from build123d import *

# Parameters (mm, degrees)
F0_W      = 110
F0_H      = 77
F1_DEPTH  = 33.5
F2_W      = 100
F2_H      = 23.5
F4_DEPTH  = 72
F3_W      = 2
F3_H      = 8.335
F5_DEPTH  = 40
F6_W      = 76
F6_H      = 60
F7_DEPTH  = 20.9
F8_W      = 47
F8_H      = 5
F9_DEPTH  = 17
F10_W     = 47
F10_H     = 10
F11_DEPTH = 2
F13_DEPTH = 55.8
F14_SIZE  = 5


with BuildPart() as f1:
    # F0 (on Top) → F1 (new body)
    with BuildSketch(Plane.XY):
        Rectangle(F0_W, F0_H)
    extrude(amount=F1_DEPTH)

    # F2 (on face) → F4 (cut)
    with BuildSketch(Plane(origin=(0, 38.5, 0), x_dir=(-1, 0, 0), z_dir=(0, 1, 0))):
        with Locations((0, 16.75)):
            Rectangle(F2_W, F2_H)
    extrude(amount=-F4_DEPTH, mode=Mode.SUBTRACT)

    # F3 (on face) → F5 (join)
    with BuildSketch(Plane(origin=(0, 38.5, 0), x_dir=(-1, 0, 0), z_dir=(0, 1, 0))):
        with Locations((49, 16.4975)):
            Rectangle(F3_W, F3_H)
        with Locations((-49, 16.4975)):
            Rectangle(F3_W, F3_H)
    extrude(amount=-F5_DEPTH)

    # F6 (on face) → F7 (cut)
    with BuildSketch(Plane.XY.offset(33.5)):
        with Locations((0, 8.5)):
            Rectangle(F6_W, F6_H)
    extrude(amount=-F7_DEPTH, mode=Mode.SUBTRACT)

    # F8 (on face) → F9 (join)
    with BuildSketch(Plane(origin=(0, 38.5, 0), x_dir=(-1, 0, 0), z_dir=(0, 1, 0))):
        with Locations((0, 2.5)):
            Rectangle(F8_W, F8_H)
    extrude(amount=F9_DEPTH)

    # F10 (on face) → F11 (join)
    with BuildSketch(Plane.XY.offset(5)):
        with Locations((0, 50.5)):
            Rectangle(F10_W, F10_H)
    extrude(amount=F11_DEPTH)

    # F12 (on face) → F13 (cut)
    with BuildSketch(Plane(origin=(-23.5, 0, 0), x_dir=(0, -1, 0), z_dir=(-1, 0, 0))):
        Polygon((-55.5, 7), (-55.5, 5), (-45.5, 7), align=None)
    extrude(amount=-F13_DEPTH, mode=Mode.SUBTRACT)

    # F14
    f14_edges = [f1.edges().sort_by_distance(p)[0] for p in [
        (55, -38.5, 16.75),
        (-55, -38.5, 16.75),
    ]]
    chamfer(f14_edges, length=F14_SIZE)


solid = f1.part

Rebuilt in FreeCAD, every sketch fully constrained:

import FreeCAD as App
import Part
import Sketcher
from FreeCAD import Vector


def edges_at(feature, points):
    """Names of the edges that pass closest to the given points."""
    edges = feature.Shape.Edges
    near = lambda p: min(range(len(edges)), key=lambda i: edges[i].distToShape(Part.Vertex(*p))[0])
    return sorted({f"Edge{near(p) + 1}" for p in points})


def add_polygon(sketch, points):
    """Adds a closed chain of lines whose ends are joined by coincident constraints."""
    first, n = sketch.GeometryCount, len(points)
    for a, b in zip(points, points[1:] + points[:1]):
        sketch.addGeometry(Part.LineSegment(App.Vector(*a, 0), App.Vector(*b, 0)), False)
    for i in range(n):
        sketch.addConstraint(Sketcher.Constraint("Coincident", first + i, 2, first + (i + 1) % n, 1))

doc = App.newDocument("Part")
body = doc.addObject("PartDesign::Body", "Body")

# Sketch on XY plane
sketch1 = doc.addObject("Sketcher::SketchObject", "Sketch")
body.addObject(sketch1)
sketch1.AttachmentSupport = (doc.XY_Plane, [""])
sketch1.MapMode = "FlatFace"
add_polygon(sketch1, [(-55, 38), (-55, -38), (55, -38), (55, 38)])  # lines 0-3
sketch1.addConstraint([
    Sketcher.Constraint("Vertical", 0),
    Sketcher.Constraint("Horizontal", 1),
    Sketcher.Constraint("Vertical", 2),
    Sketcher.Constraint("Horizontal", 3),
    Sketcher.Constraint("Symmetric", 0, 2, 2, 2, -1, 1),
    Sketcher.Constraint("DistanceX", 1, 1, 1, 2, 110.0),
    Sketcher.Constraint("DistanceY", 0, 2, 0, 1, 77.0),
])
pad1 = doc.addObject("PartDesign::Pad", "Pad")
body.addObject(pad1)
pad1.Profile = sketch1
pad1.Length = 33.5

# Sketch on XZ plane
sketch2 = doc.addObject("Sketcher::SketchObject", "Sketch001")
body.addObject(sketch2)
sketch2.AttachmentSupport = (doc.XZ_Plane, [""])
sketch2.MapMode = "FlatFace"
sketch2.AttachmentOffset = App.Placement(Vector(0, 0, -38.5), App.Rotation())
add_polygon(sketch2, [(50, 28), (50, 5), (-50, 5), (-50, 28)])  # lines 0-3
sketch2.addConstraint([
    Sketcher.Constraint("Vertical", 0),
    Sketcher.Constraint("Horizontal", 1),
    Sketcher.Constraint("Vertical", 2),
    Sketcher.Constraint("Horizontal", 3),
    Sketcher.Constraint("DistanceX", 1, 2, 1, 1, 100.0),
    Sketcher.Constraint("DistanceY", 0, 2, 0, 1, 23.5),
    Sketcher.Constraint("DistanceX", -1, 1, 0, 2, 50.0),
    Sketcher.Constraint("DistanceY", -1, 1, 0, 2, 5.0),
])
pocket1 = doc.addObject("PartDesign::Pocket", "Pocket")
body.addObject(pocket1)
pocket1.Profile = sketch2
pocket1.Length = 72
pocket1.Reversed = True

# Sketch on XZ plane
sketch3 = doc.addObject("Sketcher::SketchObject", "Sketch002")
body.addObject(sketch3)
sketch3.AttachmentSupport = (doc.XZ_Plane, [""])
sketch3.MapMode = "FlatFace"
sketch3.AttachmentOffset = App.Placement(Vector(0, 0, -38.5), App.Rotation())
add_polygon(sketch3, [(-48, 20.7), (-48, 12.3), (-50, 12.3), (-50, 20.7)])  # lines 0-3
add_polygon(sketch3, [(50, 20.7), (50, 12.3), (48, 12.3), (48, 20.7)])  # lines 4-7
sketch3.addConstraint([
    Sketcher.Constraint("Vertical", 0),
    Sketcher.Constraint("Horizontal", 1),
    Sketcher.Constraint("Vertical", 2),
    Sketcher.Constraint("Horizontal", 3),
    Sketcher.Constraint("Vertical", 4),
    Sketcher.Constraint("Horizontal", 5),
    Sketcher.Constraint("Vertical", 6),
    Sketcher.Constraint("Horizontal", 7),
    Sketcher.Constraint("Symmetric", 1, 2, 4, 2, -2),
    Sketcher.Constraint("Symmetric", 3, 2, 6, 2, -2),
    Sketcher.Constraint("DistanceX", 1, 2, 1, 1, 2.0),
    Sketcher.Constraint("DistanceX", 0, 2, -1, 1, 48.0),
    Sketcher.Constraint("DistanceY", 0, 2, 0, 1, 8.335),
    Sketcher.Constraint("DistanceY", -1, 1, 0, 2, 12.33),
])
pad2 = doc.addObject("PartDesign::Pad", "Pad001")
body.addObject(pad2)
pad2.Profile = sketch3
pad2.Length = 40

# Sketch on XY plane
sketch4 = doc.addObject("Sketcher::SketchObject", "Sketch003")
body.addObject(sketch4)
sketch4.AttachmentSupport = (doc.XY_Plane, [""])
sketch4.MapMode = "FlatFace"
sketch4.AttachmentOffset = App.Placement(Vector(0, 0, 33.5), App.Rotation())
add_polygon(sketch4, [(-38, 38), (-38, -22), (38, -22), (38, 38)])  # lines 0-3
sketch4.addConstraint([
    Sketcher.Constraint("Vertical", 0),
    Sketcher.Constraint("Horizontal", 1),
    Sketcher.Constraint("Vertical", 2),
    Sketcher.Constraint("Horizontal", 3),
    Sketcher.Constraint("DistanceX", 1, 1, 1, 2, 76.0),
    Sketcher.Constraint("DistanceY", 0, 2, 0, 1, 60.0),
    Sketcher.Constraint("DistanceX", 0, 2, -1, 1, 38.0),
    Sketcher.Constraint("DistanceY", 0, 2, -1, 1, 21.5),
])
pocket2 = doc.addObject("PartDesign::Pocket", "Pocket001")
body.addObject(pocket2)
pocket2.Profile = sketch4
pocket2.Length = 20.9

# Sketch on XZ plane
sketch5 = doc.addObject("Sketcher::SketchObject", "Sketch004")
body.addObject(sketch5)
sketch5.AttachmentSupport = (doc.XZ_Plane, [""])
sketch5.MapMode = "FlatFace"
sketch5.AttachmentOffset = App.Placement(Vector(0, 0, -38.5), App.Rotation())
add_polygon(sketch5, [(24, 5), (24, 0), (-24, 0), (-24, 5)])  # lines 0-3
sketch5.addConstraint([
    Sketcher.Constraint("Vertical", 0),
    Sketcher.Constraint("Horizontal", 1),
    Sketcher.Constraint("Vertical", 2),
    Sketcher.Constraint("Horizontal", 3),
    Sketcher.Constraint("Symmetric", 0, 2, 1, 2, -1, 1),
    Sketcher.Constraint("DistanceX", 1, 2, 1, 1, 47.0),
    Sketcher.Constraint("DistanceY", 0, 2, 0, 1, 5.0),
])
pad3 = doc.addObject("PartDesign::Pad", "Pad002")
body.addObject(pad3)
pad3.Profile = sketch5
pad3.Length = 17
pad3.Reversed = True

# Sketch on XY plane
sketch6 = doc.addObject("Sketcher::SketchObject", "Sketch005")
body.addObject(sketch6)
sketch6.AttachmentSupport = (doc.XY_Plane, [""])
sketch6.MapMode = "FlatFace"
sketch6.AttachmentOffset = App.Placement(Vector(0, 0, 5), App.Rotation())
add_polygon(sketch6, [(-24, 56), (-24, 46), (24, 46), (24, 56)])  # lines 0-3
sketch6.addConstraint([
    Sketcher.Constraint("Vertical", 0),
    Sketcher.Constraint("Horizontal", 1),
    Sketcher.Constraint("Vertical", 2),
    Sketcher.Constraint("Horizontal", 3),
    Sketcher.Constraint("DistanceX", 1, 1, 1, 2, 47.0),
    Sketcher.Constraint("DistanceY", 0, 2, 0, 1, 10.0),
    Sketcher.Constraint("DistanceX", 0, 2, -1, 1, 23.5),
    Sketcher.Constraint("DistanceY", -1, 1, 0, 2, 45.5),
])
pad4 = doc.addObject("PartDesign::Pad", "Pad003")
body.addObject(pad4)
pad4.Profile = sketch6
pad4.Length = 2

# Sketch on YZ plane
sketch7 = doc.addObject("Sketcher::SketchObject", "Sketch006")
body.addObject(sketch7)
sketch7.AttachmentSupport = (doc.YZ_Plane, [""])
sketch7.MapMode = "FlatFace"
sketch7.AttachmentOffset = App.Placement(Vector(0, 0, -23.5), App.Rotation())
add_polygon(sketch7, [(55.5, 7), (55.5, 5), (45.5, 7)])  # lines 0-2
sketch7.addConstraint([
    Sketcher.Constraint("Vertical", 0),
    Sketcher.Constraint("Horizontal", 2),
    Sketcher.Constraint("DistanceX", 2, 1, 2, 2, 10.0),
    Sketcher.Constraint("DistanceY", 0, 2, 0, 1, 2.0),
    Sketcher.Constraint("DistanceY", -1, 1, 0, 2, 5.0),
    Sketcher.Constraint("DistanceX", -1, 1, 0, 2, 55.5),
])
pocket3 = doc.addObject("PartDesign::Pocket", "Pocket002")
body.addObject(pocket3)
pocket3.Profile = sketch7
pocket3.Length = 55.8
pocket3.Reversed = True
doc.recompute()

chamfer = doc.addObject("PartDesign::Chamfer", "Chamfer")
body.addObject(chamfer)
chamfer.Base = (pocket3, edges_at(pocket3, [(55, -38.5, 16.75), (-55, -38.5, 16.75)]))
chamfer.Size = 5

doc.recompute()
